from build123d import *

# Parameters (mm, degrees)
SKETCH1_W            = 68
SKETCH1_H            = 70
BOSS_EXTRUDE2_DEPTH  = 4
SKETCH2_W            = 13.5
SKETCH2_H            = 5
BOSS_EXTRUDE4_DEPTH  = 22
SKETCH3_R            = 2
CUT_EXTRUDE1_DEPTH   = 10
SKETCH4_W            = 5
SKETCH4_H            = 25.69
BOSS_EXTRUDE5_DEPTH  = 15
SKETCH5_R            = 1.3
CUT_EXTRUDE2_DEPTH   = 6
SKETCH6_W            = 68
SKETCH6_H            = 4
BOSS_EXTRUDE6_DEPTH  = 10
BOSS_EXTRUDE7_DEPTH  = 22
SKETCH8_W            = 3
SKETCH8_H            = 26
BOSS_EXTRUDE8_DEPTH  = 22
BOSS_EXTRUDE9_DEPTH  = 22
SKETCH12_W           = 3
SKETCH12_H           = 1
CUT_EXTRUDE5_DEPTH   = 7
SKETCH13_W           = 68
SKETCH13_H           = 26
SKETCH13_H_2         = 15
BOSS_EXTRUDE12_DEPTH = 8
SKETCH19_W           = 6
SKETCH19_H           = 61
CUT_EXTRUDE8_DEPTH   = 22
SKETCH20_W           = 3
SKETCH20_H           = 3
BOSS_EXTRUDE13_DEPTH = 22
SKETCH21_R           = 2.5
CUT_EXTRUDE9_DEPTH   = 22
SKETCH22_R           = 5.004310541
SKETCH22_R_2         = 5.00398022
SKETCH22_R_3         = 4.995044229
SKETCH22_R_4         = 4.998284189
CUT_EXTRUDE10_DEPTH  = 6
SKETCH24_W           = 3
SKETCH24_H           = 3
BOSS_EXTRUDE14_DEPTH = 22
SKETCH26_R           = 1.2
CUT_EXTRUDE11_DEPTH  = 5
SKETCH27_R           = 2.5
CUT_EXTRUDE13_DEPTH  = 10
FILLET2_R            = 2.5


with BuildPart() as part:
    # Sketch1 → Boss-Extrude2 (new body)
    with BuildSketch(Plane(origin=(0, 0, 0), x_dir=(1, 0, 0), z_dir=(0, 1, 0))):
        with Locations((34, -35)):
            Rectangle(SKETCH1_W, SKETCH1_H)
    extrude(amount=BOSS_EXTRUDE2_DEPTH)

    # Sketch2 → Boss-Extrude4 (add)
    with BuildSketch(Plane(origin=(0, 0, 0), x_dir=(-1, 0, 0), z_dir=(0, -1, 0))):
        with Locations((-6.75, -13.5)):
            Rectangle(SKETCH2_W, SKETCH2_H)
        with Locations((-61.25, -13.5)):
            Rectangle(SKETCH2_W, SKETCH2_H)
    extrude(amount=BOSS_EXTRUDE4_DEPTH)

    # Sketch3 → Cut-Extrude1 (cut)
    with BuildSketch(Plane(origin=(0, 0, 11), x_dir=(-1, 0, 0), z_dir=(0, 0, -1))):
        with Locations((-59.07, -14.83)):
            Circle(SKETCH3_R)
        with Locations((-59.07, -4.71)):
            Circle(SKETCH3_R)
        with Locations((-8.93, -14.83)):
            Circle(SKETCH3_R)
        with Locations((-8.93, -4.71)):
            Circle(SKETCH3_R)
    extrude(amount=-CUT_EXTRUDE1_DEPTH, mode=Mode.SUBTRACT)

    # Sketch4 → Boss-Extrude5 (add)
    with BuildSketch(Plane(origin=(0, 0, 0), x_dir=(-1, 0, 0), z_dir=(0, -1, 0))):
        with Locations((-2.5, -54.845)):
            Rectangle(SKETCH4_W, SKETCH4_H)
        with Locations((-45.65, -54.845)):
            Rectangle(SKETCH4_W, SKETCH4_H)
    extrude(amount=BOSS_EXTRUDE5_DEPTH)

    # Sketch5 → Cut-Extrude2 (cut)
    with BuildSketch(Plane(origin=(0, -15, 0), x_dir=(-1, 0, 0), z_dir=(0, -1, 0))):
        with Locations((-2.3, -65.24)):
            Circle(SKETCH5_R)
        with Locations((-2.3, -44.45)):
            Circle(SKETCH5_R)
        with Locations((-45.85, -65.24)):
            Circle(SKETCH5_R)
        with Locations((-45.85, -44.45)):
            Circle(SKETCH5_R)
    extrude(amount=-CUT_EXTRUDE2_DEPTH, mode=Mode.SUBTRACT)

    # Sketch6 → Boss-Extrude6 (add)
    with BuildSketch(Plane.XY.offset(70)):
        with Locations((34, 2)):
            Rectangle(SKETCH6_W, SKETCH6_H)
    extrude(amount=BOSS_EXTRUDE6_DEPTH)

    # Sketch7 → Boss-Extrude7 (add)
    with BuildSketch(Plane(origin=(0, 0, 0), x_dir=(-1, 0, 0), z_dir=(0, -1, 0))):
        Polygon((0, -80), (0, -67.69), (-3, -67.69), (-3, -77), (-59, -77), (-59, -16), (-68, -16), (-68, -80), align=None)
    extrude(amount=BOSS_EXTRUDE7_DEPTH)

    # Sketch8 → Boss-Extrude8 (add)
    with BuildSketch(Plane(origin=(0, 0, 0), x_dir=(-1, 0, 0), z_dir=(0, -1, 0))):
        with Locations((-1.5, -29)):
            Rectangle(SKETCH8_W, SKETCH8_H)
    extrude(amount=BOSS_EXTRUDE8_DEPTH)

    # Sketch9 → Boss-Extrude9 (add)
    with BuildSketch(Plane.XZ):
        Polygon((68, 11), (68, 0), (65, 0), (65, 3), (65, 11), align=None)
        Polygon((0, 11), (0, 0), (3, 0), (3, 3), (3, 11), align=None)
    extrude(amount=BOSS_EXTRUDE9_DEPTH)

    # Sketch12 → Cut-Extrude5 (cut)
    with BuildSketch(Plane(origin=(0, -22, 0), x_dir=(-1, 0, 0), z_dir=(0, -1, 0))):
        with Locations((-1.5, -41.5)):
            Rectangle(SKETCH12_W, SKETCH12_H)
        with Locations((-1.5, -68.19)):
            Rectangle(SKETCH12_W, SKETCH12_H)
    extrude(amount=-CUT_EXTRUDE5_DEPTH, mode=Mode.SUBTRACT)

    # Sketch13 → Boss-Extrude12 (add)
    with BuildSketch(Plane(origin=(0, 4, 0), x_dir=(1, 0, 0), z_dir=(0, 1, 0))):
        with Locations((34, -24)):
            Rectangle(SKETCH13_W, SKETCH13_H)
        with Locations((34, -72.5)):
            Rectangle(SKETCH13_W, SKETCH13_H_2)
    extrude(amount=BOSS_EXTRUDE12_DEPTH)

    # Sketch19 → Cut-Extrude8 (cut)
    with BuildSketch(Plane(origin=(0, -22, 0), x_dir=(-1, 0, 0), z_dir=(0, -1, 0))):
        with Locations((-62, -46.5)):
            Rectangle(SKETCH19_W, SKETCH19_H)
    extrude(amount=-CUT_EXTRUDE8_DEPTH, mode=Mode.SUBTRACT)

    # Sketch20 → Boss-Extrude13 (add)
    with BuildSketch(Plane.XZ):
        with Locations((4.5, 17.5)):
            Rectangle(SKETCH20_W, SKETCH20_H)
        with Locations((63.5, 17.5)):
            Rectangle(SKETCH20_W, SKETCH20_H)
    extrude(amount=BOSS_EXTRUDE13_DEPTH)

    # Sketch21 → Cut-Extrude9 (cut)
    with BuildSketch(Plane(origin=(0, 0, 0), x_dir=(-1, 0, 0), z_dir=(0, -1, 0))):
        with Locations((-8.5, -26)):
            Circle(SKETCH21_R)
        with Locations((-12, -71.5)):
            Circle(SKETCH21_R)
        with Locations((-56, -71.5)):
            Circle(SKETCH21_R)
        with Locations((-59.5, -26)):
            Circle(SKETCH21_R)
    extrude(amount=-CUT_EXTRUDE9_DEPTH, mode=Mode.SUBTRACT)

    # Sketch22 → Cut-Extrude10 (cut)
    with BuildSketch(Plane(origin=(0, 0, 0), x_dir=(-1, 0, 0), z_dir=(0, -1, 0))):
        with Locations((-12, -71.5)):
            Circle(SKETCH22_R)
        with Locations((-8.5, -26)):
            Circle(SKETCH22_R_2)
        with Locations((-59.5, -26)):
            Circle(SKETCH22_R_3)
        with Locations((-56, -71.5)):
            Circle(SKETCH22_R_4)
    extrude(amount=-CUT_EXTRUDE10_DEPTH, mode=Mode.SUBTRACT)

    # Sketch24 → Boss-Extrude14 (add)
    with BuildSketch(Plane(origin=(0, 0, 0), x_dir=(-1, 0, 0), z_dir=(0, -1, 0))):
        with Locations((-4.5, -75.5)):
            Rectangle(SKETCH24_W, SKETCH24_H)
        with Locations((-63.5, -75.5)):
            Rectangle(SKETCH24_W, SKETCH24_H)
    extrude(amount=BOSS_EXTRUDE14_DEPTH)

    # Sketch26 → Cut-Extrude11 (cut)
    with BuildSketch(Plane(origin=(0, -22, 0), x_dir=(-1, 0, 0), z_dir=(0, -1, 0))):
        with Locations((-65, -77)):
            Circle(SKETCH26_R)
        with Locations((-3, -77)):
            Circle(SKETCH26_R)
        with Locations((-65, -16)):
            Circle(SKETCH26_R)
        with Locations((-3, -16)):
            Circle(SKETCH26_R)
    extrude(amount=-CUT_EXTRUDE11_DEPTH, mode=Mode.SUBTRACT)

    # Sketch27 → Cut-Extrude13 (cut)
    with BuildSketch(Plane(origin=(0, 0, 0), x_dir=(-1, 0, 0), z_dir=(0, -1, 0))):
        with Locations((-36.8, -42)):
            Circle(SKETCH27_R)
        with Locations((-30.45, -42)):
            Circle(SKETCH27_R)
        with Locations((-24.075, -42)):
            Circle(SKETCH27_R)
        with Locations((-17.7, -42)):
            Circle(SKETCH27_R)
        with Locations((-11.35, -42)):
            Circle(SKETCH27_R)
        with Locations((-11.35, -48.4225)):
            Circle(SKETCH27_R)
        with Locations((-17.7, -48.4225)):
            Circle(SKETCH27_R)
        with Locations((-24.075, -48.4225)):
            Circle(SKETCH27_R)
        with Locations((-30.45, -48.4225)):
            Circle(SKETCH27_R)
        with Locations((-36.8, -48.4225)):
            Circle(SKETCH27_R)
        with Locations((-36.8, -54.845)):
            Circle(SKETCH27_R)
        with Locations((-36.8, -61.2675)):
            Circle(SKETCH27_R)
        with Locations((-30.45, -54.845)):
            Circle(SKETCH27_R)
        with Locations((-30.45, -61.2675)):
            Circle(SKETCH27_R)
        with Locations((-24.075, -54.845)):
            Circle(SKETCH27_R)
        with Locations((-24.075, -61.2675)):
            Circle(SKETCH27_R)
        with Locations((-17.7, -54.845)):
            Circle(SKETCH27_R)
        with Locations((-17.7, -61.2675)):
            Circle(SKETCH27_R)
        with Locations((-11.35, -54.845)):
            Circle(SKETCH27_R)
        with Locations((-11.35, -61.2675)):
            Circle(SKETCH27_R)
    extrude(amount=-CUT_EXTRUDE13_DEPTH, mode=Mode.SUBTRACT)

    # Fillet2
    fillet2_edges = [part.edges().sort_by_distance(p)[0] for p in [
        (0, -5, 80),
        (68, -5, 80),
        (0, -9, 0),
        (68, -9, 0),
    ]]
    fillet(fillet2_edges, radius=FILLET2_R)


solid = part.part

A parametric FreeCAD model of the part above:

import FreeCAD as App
import Part
import Sketcher

V = App.Vector


def edges_at(feature, points):
    """Names of the edges that pass closest to the given points."""
    edges = feature.Shape.Edges
    near = lambda p: min(range(len(edges)), key=lambda i: edges[i].distToShape(Part.Vertex(*p))[0])
    return sorted({f"Edge{near(p) + 1}" for p in points})

doc = App.newDocument("Part")
body = doc.addObject("PartDesign::Body", "Body")

sketch1 = body.newObject("Sketcher::SketchObject", "Sketch")
sketch1.AttachmentSupport = (doc.getObject("XZ_Plane"), [""])
sketch1.MapMode = "FlatFace"
sketch1.addGeometry(Part.LineSegment(V(0, 0, 0), V(0, 70, 0)), False)
sketch1.addGeometry(Part.LineSegment(V(0, 70, 0), V(68, 70, 0)), False)
sketch1.addGeometry(Part.LineSegment(V(68, 70, 0), V(68, 0, 0)), False)
sketch1.addGeometry(Part.LineSegment(V(68, 0, 0), V(0, 0, 0)), False)
sketch1.addConstraint(Sketcher.Constraint("Coincident", 0, 2, 1, 1))
sketch1.addConstraint(Sketcher.Constraint("Coincident", 1, 2, 2, 1))
sketch1.addConstraint(Sketcher.Constraint("Coincident", 2, 2, 3, 1))
sketch1.addConstraint(Sketcher.Constraint("Coincident", 3, 2, 0, 1))
sketch1.addConstraint(Sketcher.Constraint("Vertical", 0))
sketch1.addConstraint(Sketcher.Constraint("Horizontal", 1))
sketch1.addConstraint(Sketcher.Constraint("Vertical", 2))
sketch1.addConstraint(Sketcher.Constraint("Horizontal", 3))
sketch1.addConstraint(Sketcher.Constraint("Coincident", 3, 2, -1, 1))
sketch1.addConstraint(Sketcher.Constraint("DistanceX", 1, 1, 1, 2, 68.0))
sketch1.addConstraint(Sketcher.Constraint("DistanceY", 0, 1, 0, 2, 70.0))
pad1 = body.newObject("PartDesign::Pad", "Pad")
pad1.Profile = sketch1
pad1.Length = 4
pad1.Reversed = True

sketch2 = body.newObject("Sketcher::SketchObject", "Sketch001")
sketch2.AttachmentSupport = (doc.getObject("XZ_Plane"), [""])
sketch2.MapMode = "FlatFace"
sketch2.addGeometry(Part.LineSegment(V(14, 11, 0), V(14, 16, 0)), False)
sketch2.addGeometry(Part.LineSegment(V(14, 16, 0), V(0, 16, 0)), False)
sketch2.addGeometry(Part.LineSegment(V(0, 16, 0), V(0, 11, 0)), False)
sketch2.addGeometry(Part.LineSegment(V(0, 11, 0), V(14, 11, 0)), False)
sketch2.addGeometry(Part.LineSegment(V(68, 11, 0), V(68, 16, 0)), False)
sketch2.addGeometry(Part.LineSegment(V(68, 16, 0), V(54, 16, 0)), False)
sketch2.addGeometry(Part.LineSegment(V(54, 16, 0), V(54, 11, 0)), False)
sketch2.addGeometry(Part.LineSegment(V(54, 11, 0), V(68, 11, 0)), False)
sketch2.addConstraint(Sketcher.Constraint("Coincident", 0, 2, 1, 1))
sketch2.addConstraint(Sketcher.Constraint("Coincident", 1, 2, 2, 1))
sketch2.addConstraint(Sketcher.Constraint("Coincident", 2, 2, 3, 1))
sketch2.addConstraint(Sketcher.Constraint("Coincident", 3, 2, 0, 1))
sketch2.addConstraint(Sketcher.Constraint("Coincident", 4, 2, 5, 1))
sketch2.addConstraint(Sketcher.Constraint("Coincident", 5, 2, 6, 1))
sketch2.addConstraint(Sketcher.Constraint("Coincident", 6, 2, 7, 1))
sketch2.addConstraint(Sketcher.Constraint("Coincident", 7, 2, 4, 1))
sketch2.addConstraint(Sketcher.Constraint("Vertical", 0))
sketch2.addConstraint(Sketcher.Constraint("Horizontal", 1))
sketch2.addConstraint(Sketcher.Constraint("Vertical", 2))
sketch2.addConstraint(Sketcher.Constraint("Horizontal", 3))
sketch2.addConstraint(Sketcher.Constraint("Vertical", 4))
sketch2.addConstraint(Sketcher.Constraint("Horizontal", 5))
sketch2.addConstraint(Sketcher.Constraint("Vertical", 6))
sketch2.addConstraint(Sketcher.Constraint("Horizontal", 7))
sketch2.addConstraint(Sketcher.Constraint("PointOnObject", 1, 2, -2))
sketch2.addConstraint(Sketcher.Constraint("Horizontal", 1, 2, 4, 2))
sketch2.addConstraint(Sketcher.Constraint("Horizontal", 3, 2, 6, 2))
sketch2.addConstraint(Sketcher.Constraint("Equal", 3, 5))
sketch2.addConstraint(Sketcher.Constraint("DistanceY", 0, 1, 0, 2, 5.0))
sketch2.addConstraint(Sketcher.Constraint("DistanceX", 1, 2, 1, 1, 13.5))
sketch2.addConstraint(Sketcher.Constraint("DistanceY", -1, 1, 0, 2, 16.0))
sketch2.addConstraint(Sketcher.Constraint("DistanceX", -1, 1, 4, 2, 68.0))
pad2 = body.newObject("PartDesign::Pad", "Pad001")
pad2.Profile = sketch2
pad2.Length = 22

sketch3 = body.newObject("Sketcher::SketchObject", "Sketch002")
sketch3.AttachmentSupport = (doc.getObject("XY_Plane"), [""])
sketch3.MapMode = "FlatFace"
sketch3.AttachmentOffset = App.Placement(V(0, 0, 11), App.Rotation())
sketch3.addGeometry(Part.Circle(V(59.1, -14.8, 0), V(0, 0, 1), 2), False)
sketch3.addGeometry(Part.Circle(V(59.1, -4.7, 0), V(0, 0, 1), 2), False)
sketch3.addGeometry(Part.Circle(V(8.9, -14.8, 0), V(0, 0, 1), 2), False)
sketch3.addGeometry(Part.Circle(V(8.9, -4.7, 0), V(0, 0, 1), 2), False)
sketch3.addConstraint(Sketcher.Constraint("Equal", 0, 1))
sketch3.addConstraint(Sketcher.Constraint("Equal", 1, 2))
sketch3.addConstraint(Sketcher.Constraint("Equal", 2, 3))
sketch3.addConstraint(Sketcher.Constraint("Horizontal", 0, 3, 2, 3))
sketch3.addConstraint(Sketcher.Constraint("Horizontal", 1, 3, 3, 3))
sketch3.addConstraint(Sketcher.Constraint("Vertical", 0, 3, 1, 3))
sketch3.addConstraint(Sketcher.Constraint("Vertical", 2, 3, 3, 3))
sketch3.addConstraint(Sketcher.Constraint("Diameter", 0, 4.0))
sketch3.addConstraint(Sketcher.Constraint("DistanceX", -1, 1, 0, 3, 59.07))
sketch3.addConstraint(Sketcher.Constraint("DistanceY", 0, 3, -1, 1, 14.83))
sketch3.addConstraint(Sketcher.Constraint("DistanceY", 1, 3, -1, 1, 4.71))
sketch3.addConstraint(Sketcher.Constraint("DistanceX", -1, 1, 2, 3, 8.93))
pocket1 = body.newObject("PartDesign::Pocket", "Pocket")
pocket1.Profile = sketch3
pocket1.Length = 10
pocket1.Reversed = True

sketch4 = body.newObject("Sketcher::SketchObject", "Sketch003")
sketch4.AttachmentSupport = (doc.getObject("XZ_Plane"), [""])
sketch4.MapMode = "FlatFace"
sketch4.addGeometry(Part.LineSegment(V(5, 42, 0), V(5, 68, 0)), False)
sketch4.addGeometry(Part.LineSegment(V(5, 68, 0), V(0, 68, 0)), False)
sketch4.addGeometry(Part.LineSegment(V(0, 68, 0), V(0, 42, 0)), False)
sketch4.addGeometry(Part.LineSegment(V(0, 42, 0), V(5, 42, 0)), False)
sketch4.addGeometry(Part.LineSegment(V(48, 42, 0), V(48, 68, 0)), False)
sketch4.addGeometry(Part.LineSegment(V(48, 68, 0), V(43, 68, 0)), False)
sketch4.addGeometry(Part.LineSegment(V(43, 68, 0), V(43, 42, 0)), False)
sketch4.addGeometry(Part.LineSegment(V(43, 42, 0), V(48, 42, 0)), False)
sketch4.addConstraint(Sketcher.Constraint("Coincident", 0, 2, 1, 1))
sketch4.addConstraint(Sketcher.Constraint("Coincident", 1, 2, 2, 1))
sketch4.addConstraint(Sketcher.Constraint("Coincident", 2, 2, 3, 1))
sketch4.addConstraint(Sketcher.Constraint("Coincident", 3, 2, 0, 1))
sketch4.addConstraint(Sketcher.Constraint("Coincident", 4, 2, 5, 1))
sketch4.addConstraint(Sketcher.Constraint("Coincident", 5, 2, 6, 1))
sketch4.addConstraint(Sketcher.Constraint("Coincident", 6, 2, 7, 1))
sketch4.addConstraint(Sketcher.Constraint("Coincident", 7, 2, 4, 1))
sketch4.addConstraint(Sketcher.Constraint("Vertical", 0))
sketch4.addConstraint(Sketcher.Constraint("Horizontal", 1))
sketch4.addConstraint(Sketcher.Constraint("Vertical", 2))
sketch4.addConstraint(Sketcher.Constraint("Horizontal", 3))
sketch4.addConstraint(Sketcher.Constraint("Vertical", 4))
sketch4.addConstraint(Sketcher.Constraint("Horizontal", 5))
sketch4.addConstraint(Sketcher.Constraint("Vertical", 6))
sketch4.addConstraint(Sketcher.Constraint("Horizontal", 7))
sketch4.addConstraint(Sketcher.Constraint("PointOnObject", 1, 2, -2))
sketch4.addConstraint(Sketcher.Constraint("Horizontal", 1, 2, 4, 2))
sketch4.addConstraint(Sketcher.Constraint("Horizontal", 3, 2, 6, 2))
sketch4.addConstraint(Sketcher.Constraint("Equal", 3, 5))
sketch4.addConstraint(Sketcher.Constraint("DistanceX", 1, 2, 1, 1, 5.0))
sketch4.addConstraint(Sketcher.Constraint("DistanceY", -1, 1, 2, 2, 42.0))
sketch4.addConstraint(Sketcher.Constraint("DistanceY", 0, 1, 0, 2, 25.69))
sketch4.addConstraint(Sketcher.Constraint("DistanceX", -1, 1, 4, 2, 48.15))
pad3 = body.newObject("PartDesign::Pad", "Pad002")
pad3.Profile = sketch4
pad3.Length = 15

sketch5 = body.newObject("Sketcher::SketchObject", "Sketch004")
sketch5.AttachmentSupport = (doc.getObject("XZ_Plane"), [""])
sketch5.MapMode = "FlatFace"
sketch5.AttachmentOffset = App.Placement(V(0, 0, 15), App.Rotation())
sketch5.addGeometry(Part.Circle(V(2.3, 65.2, 0), V(0, 0, 1), 1.3), False)
sketch5.addGeometry(Part.Circle(V(2.3, 44.5, 0), V(0, 0, 1), 1.3), False)
sketch5.addGeometry(Part.Circle(V(45.9, 65.2, 0), V(0, 0, 1), 1.3), False)
sketch5.addGeometry(Part.Circle(V(45.9, 44.5, 0), V(0, 0, 1), 1.3), False)
sketch5.addConstraint(Sketcher.Constraint("Equal", 0, 1))
sketch5.addConstraint(Sketcher.Constraint("Equal", 1, 2))
sketch5.addConstraint(Sketcher.Constraint("Equal", 2, 3))
sketch5.addConstraint(Sketcher.Constraint("Horizontal", 0, 3, 2, 3))
sketch5.addConstraint(Sketcher.Constraint("Horizontal", 1, 3, 3, 3))
sketch5.addConstraint(Sketcher.Constraint("Vertical", 0, 3, 1, 3))
sketch5.addConstraint(Sketcher.Constraint("Vertical", 2, 3, 3, 3))
sketch5.addConstraint(Sketcher.Constraint("Diameter", 0, 2.6))
sketch5.addConstraint(Sketcher.Constraint("DistanceX", -1, 1, 0, 3, 2.3))
sketch5.addConstraint(Sketcher.Constraint("DistanceY", -1, 1, 0, 3, 65.24))
sketch5.addConstraint(Sketcher.Constraint("DistanceY", -1, 1, 1, 3, 44.45))
sketch5.addConstraint(Sketcher.Constraint("DistanceX", -1, 1, 2, 3, 45.85))
pocket2 = body.newObject("PartDesign::Pocket", "Pocket001")
pocket2.Profile = sketch5
pocket2.Length = 6

sketch6 = body.newObject("Sketcher::SketchObject", "Sketch005")
sketch6.AttachmentSupport = (doc.getObject("XY_Plane"), [""])
sketch6.MapMode = "FlatFace"
sketch6.AttachmentOffset = App.Placement(V(0, 0, 70), App.Rotation())
sketch6.addGeometry(Part.LineSegment(V(0, 4, 0), V(0, 0, 0)), False)
sketch6.addGeometry(Part.LineSegment(V(0, 0, 0), V(68, 0, 0)), False)
sketch6.addGeometry(Part.LineSegment(V(68, 0, 0), V(68, 4, 0)), False)
sketch6.addGeometry(Part.LineSegment(V(68, 4, 0), V(0, 4, 0)), False)
sketch6.addConstraint(Sketcher.Constraint("Coincident", 0, 2, 1, 1))
sketch6.addConstraint(Sketcher.Constraint("Coincident", 1, 2, 2, 1))
sketch6.addConstraint(Sketcher.Constraint("Coincident", 2, 2, 3, 1))
sketch6.addConstraint(Sketcher.Constraint("Coincident", 3, 2, 0, 1))
sketch6.addConstraint(Sketcher.Constraint("Vertical", 0))
sketch6.addConstraint(Sketcher.Constraint("Horizontal", 1))
sketch6.addConstraint(Sketcher.Constraint("Vertical", 2))
sketch6.addConstraint(Sketcher.Constraint("Horizontal", 3))
sketch6.addConstraint(Sketcher.Constraint("Coincident", 0, 2, -1, 1))
sketch6.addConstraint(Sketcher.Constraint("DistanceX", 1, 1, 1, 2, 68.0))
sketch6.addConstraint(Sketcher.Constraint("DistanceY", 0, 2, 0, 1, 4.0))
pad4 = body.newObject("PartDesign::Pad", "Pad003")
pad4.Profile = sketch6
pad4.Length = 10

sketch7 = body.newObject("Sketcher::SketchObject", "Sketch006")
sketch7.AttachmentSupport = (doc.getObject("XZ_Plane"), [""])
sketch7.MapMode = "FlatFace"
sketch7.addGeometry(Part.LineSegment(V(0, 80, 0), V(0, 67.7, 0)), False)
sketch7.addGeometry(Part.LineSegment(V(0, 67.7, 0), V(3, 67.7, 0)), False)
sketch7.addGeometry(Part.LineSegment(V(3, 67.7, 0), V(3, 77, 0)), False)
sketch7.addGeometry(Part.LineSegment(V(3, 77, 0), V(59, 77, 0)), False)
sketch7.addGeometry(Part.LineSegment(V(59, 77, 0), V(59, 16, 0)), False)
sketch7.addGeometry(Part.LineSegment(V(59, 16, 0), V(68, 16, 0)), False)
sketch7.addGeometry(Part.LineSegment(V(68, 16, 0), V(68, 80, 0)), False)
sketch7.addGeometry(Part.LineSegment(V(68, 80, 0), V(0, 80, 0)), False)
sketch7.addConstraint(Sketcher.Constraint("Coincident", 0, 2, 1, 1))
sketch7.addConstraint(Sketcher.Constraint("Coincident", 1, 2, 2, 1))
sketch7.addConstraint(Sketcher.Constraint("Coincident", 2, 2, 3, 1))
sketch7.addConstraint(Sketcher.Constraint("Coincident", 3, 2, 4, 1))
sketch7.addConstraint(Sketcher.Constraint("Coincident", 4, 2, 5, 1))
sketch7.addConstraint(Sketcher.Constraint("Coincident", 5, 2, 6, 1))
sketch7.addConstraint(Sketcher.Constraint("Coincident", 6, 2, 7, 1))
sketch7.addConstraint(Sketcher.Constraint("Coincident", 7, 2, 0, 1))
sketch7.addConstraint(Sketcher.Constraint("Vertical", 0))
sketch7.addConstraint(Sketcher.Constraint("Horizontal", 1))
sketch7.addConstraint(Sketcher.Constraint("Vertical", 2))
sketch7.addConstraint(Sketcher.Constraint("Horizontal", 3))
sketch7.addConstraint(Sketcher.Constraint("Vertical", 4))
sketch7.addConstraint(Sketcher.Constraint("Horizontal", 5))
sketch7.addConstraint(Sketcher.Constraint("Vertical", 6))
sketch7.addConstraint(Sketcher.Constraint("Horizontal", 7))
sketch7.addConstraint(Sketcher.Constraint("PointOnObject", 0, 2, -2))
sketch7.addConstraint(Sketcher.Constraint("DistanceX", 1, 1, 1, 2, 3.0))
sketch7.addConstraint(Sketcher.Constraint("DistanceX", 3, 1, 3, 2, 56.0))
sketch7.addConstraint(Sketcher.Constraint("DistanceX", 5, 1, 5, 2, 9.0))
sketch7.addConstraint(Sketcher.Constraint("DistanceY", 4, 2, 4, 1, 61.0))
sketch7.addConstraint(Sketcher.Constraint("DistanceY", 6, 1, 6, 2, 64.0))
sketch7.addConstraint(Sketcher.Constraint("DistanceY", -1, 1, 2, 2, 77.0))
sketch7.addConstraint(Sketcher.Constraint("DistanceY", 0, 2, 0, 1, 12.31))
pad5 = body.newObject("PartDesign::Pad", "Pad004")
pad5.Profile = sketch7
pad5.Length = 22

sketch8 = body.newObject("Sketcher::SketchObject", "Sketch007")
sketch8.AttachmentSupport = (doc.getObject("XZ_Plane"), [""])
sketch8.MapMode = "FlatFace"
sketch8.addGeometry(Part.LineSegment(V(3, 16, 0), V(3, 42, 0)), False)
sketch8.addGeometry(Part.LineSegment(V(3, 42, 0), V(0, 42, 0)), False)
sketch8.addGeometry(Part.LineSegment(V(0, 42, 0), V(0, 16, 0)), False)
sketch8.addGeometry(Part.LineSegment(V(0, 16, 0), V(3, 16, 0)), False)
sketch8.addConstraint(Sketcher.Constraint("Coincident", 0, 2, 1, 1))
sketch8.addConstraint(Sketcher.Constraint("Coincident", 1, 2, 2, 1))
sketch8.addConstraint(Sketcher.Constraint("Coincident", 2, 2, 3, 1))
sketch8.addConstraint(Sketcher.Constraint("Coincident", 3, 2, 0, 1))
sketch8.addConstraint(Sketcher.Constraint("Vertical", 0))
sketch8.addConstraint(Sketcher.Constraint("Horizontal", 1))
sketch8.addConstraint(Sketcher.Constraint("Vertical", 2))
sketch8.addConstraint(Sketcher.Constraint("Horizontal", 3))
sketch8.addConstraint(Sketcher.Constraint("PointOnObject", 1, 2, -2))
sketch8.addConstraint(Sketcher.Constraint("DistanceX", 1, 2, 1, 1, 3.0))
sketch8.addConstraint(Sketcher.Constraint("DistanceY", 0, 1, 0, 2, 26.0))
sketch8.addConstraint(Sketcher.Constraint("DistanceY", -1, 1, 0, 2, 42.0))
pad6 = body.newObject("PartDesign::Pad", "Pad005")
pad6.Profile = sketch8
pad6.Length = 22

sketch9 = body.newObject("Sketcher::SketchObject", "Sketch008")
sketch9.AttachmentSupport = (doc.getObject("XZ_Plane"), [""])
sketch9.MapMode = "FlatFace"
sketch9.addGeometry(Part.LineSegment(V(68, 0, 0), V(68, 11, 0)), False)
sketch9.addGeometry(Part.LineSegment(V(68, 11, 0), V(65, 11, 0)), False)
sketch9.addGeometry(Part.LineSegment(V(65, 11, 0), V(65, 0, 0)), False)
sketch9.addGeometry(Part.LineSegment(V(65, 0, 0), V(68, 0, 0)), False)
sketch9.addGeometry(Part.LineSegment(V(0, 11, 0), V(0, 0, 0)), False)
sketch9.addGeometry(Part.LineSegment(V(0, 0, 0), V(3, 0, 0)), False)
sketch9.addGeometry(Part.LineSegment(V(3, 0, 0), V(3, 11, 0)), False)
sketch9.addGeometry(Part.LineSegment(V(3, 11, 0), V(0, 11, 0)), False)
sketch9.addConstraint(Sketcher.Constraint("Coincident", 0, 2, 1, 1))
sketch9.addConstraint(Sketcher.Constraint("Coincident", 1, 2, 2, 1))
sketch9.addConstraint(Sketcher.Constraint("Coincident", 2, 2, 3, 1))
sketch9.addConstraint(Sketcher.Constraint("Coincident", 3, 2, 0, 1))
sketch9.addConstraint(Sketcher.Constraint("Coincident", 4, 2, 5, 1))
sketch9.addConstraint(Sketcher.Constraint("Coincident", 5, 2, 6, 1))
sketch9.addConstraint(Sketcher.Constraint("Coincident", 6, 2, 7, 1))
sketch9.addConstraint(Sketcher.Constraint("Coincident", 7, 2, 4, 1))
sketch9.addConstraint(Sketcher.Constraint("Vertical", 0))
sketch9.addConstraint(Sketcher.Constraint("Horizontal", 1))
sketch9.addConstraint(Sketcher.Constraint("Vertical", 2))
sketch9.addConstraint(Sketcher.Constraint("Horizontal", 3))
sketch9.addConstraint(Sketcher.Constraint("Vertical", 4))
sketch9.addConstraint(Sketcher.Constraint("Horizontal", 5))
sketch9.addConstraint(Sketcher.Constraint("Vertical", 6))
sketch9.addConstraint(Sketcher.Constraint("Horizontal", 7))
sketch9.addConstraint(Sketcher.Constraint("Coincident", 4, 2, -1, 1))
sketch9.addConstraint(Sketcher.Constraint("PointOnObject", 2, 2, -1))
sketch9.addConstraint(Sketcher.Constraint("Horizontal", 1, 2, 6, 2))
sketch9.addConstraint(Sketcher.Constraint("Equal", 3, 5))
sketch9.addConstraint(Sketcher.Constraint("DistanceX", 1, 2, 1, 1, 3.0))
sketch9.addConstraint(Sketcher.Constraint("DistanceY", 0, 1, 0, 2, 11.0))
sketch9.addConstraint(Sketcher.Constraint("DistanceX", -1, 1, 0, 2, 68.0))
pad7 = body.newObject("PartDesign::Pad", "Pad006")
pad7.Profile = sketch9
pad7.Length = 22

sketch10 = body.newObject("Sketcher::SketchObject", "Sketch009")
sketch10.AttachmentSupport = (doc.getObject("XZ_Plane"), [""])
sketch10.MapMode = "FlatFace"
sketch10.AttachmentOffset = App.Placement(V(0, 0, 22), App.Rotation())
sketch10.addGeometry(Part.LineSegment(V(3, 41, 0), V(3, 42, 0)), False)
sketch10.addGeometry(Part.LineSegment(V(3, 42, 0), V(0, 42, 0)), False)
sketch10.addGeometry(Part.LineSegment(V(0, 42, 0), V(0, 41, 0)), False)
sketch10.addGeometry(Part.LineSegment(V(0, 41, 0), V(3, 41, 0)), False)
sketch10.addGeometry(Part.LineSegment(V(3, 67.7, 0), V(3, 68.7, 0)), False)
sketch10.addGeometry(Part.LineSegment(V(3, 68.7, 0), V(0, 68.7, 0)), False)
sketch10.addGeometry(Part.LineSegment(V(0, 68.7, 0), V(0, 67.7, 0)), False)
sketch10.addGeometry(Part.LineSegment(V(0, 67.7, 0), V(3, 67.7, 0)), False)
sketch10.addConstraint(Sketcher.Constraint("Coincident", 0, 2, 1, 1))
sketch10.addConstraint(Sketcher.Constraint("Coincident", 1, 2, 2, 1))
sketch10.addConstraint(Sketcher.Constraint("Coincident", 2, 2, 3, 1))
sketch10.addConstraint(Sketcher.Constraint("Coincident", 3, 2, 0, 1))
sketch10.addConstraint(Sketcher.Constraint("Coincident", 4, 2, 5, 1))
sketch10.addConstraint(Sketcher.Constraint("Coincident", 5, 2, 6, 1))
sketch10.addConstraint(Sketcher.Constraint("Coincident", 6, 2, 7, 1))
sketch10.addConstraint(Sketcher.Constraint("Coincident", 7, 2, 4, 1))
sketch10.addConstraint(Sketcher.Constraint("Vertical", 0))
sketch10.addConstraint(Sketcher.Constraint("Horizontal", 1))
sketch10.addConstraint(Sketcher.Constraint("Vertical", 2))
sketch10.addConstraint(Sketcher.Constraint("Horizontal", 3))
sketch10.addConstraint(Sketcher.Constraint("Vertical", 4))
sketch10.addConstraint(Sketcher.Constraint("Horizontal", 5))
sketch10.addConstraint(Sketcher.Constraint("Vertical", 6))
sketch10.addConstraint(Sketcher.Constraint("Horizontal", 7))
sketch10.addConstraint(Sketcher.Constraint("PointOnObject", 1, 2, -2))
sketch10.addConstraint(Sketcher.Constraint("PointOnObject", 5, 2, -2))
sketch10.addConstraint(Sketcher.Constraint("Vertical", 3, 2, 4, 2))
sketch10.addConstraint(Sketcher.Constraint("Equal", 2, 4))
sketch10.addConstraint(Sketcher.Constraint("DistanceX", 1, 2, 1, 1, 3.0))
sketch10.addConstraint(Sketcher.Constraint("DistanceY", 0, 1, 0, 2, 1.0))
sketch10.addConstraint(Sketcher.Constraint("DistanceY", -1, 1, 0, 2, 42.0))
sketch10.addConstraint(Sketcher.Constraint("DistanceY", -1, 1, 4, 2, 68.69))
pocket3 = body.newObject("PartDesign::Pocket", "Pocket002")
pocket3.Profile = sketch10
pocket3.Length = 7

sketch11 = body.newObject("Sketcher::SketchObject", "Sketch010")
sketch11.AttachmentSupport = (doc.getObject("XZ_Plane"), [""])
sketch11.MapMode = "FlatFace"
sketch11.AttachmentOffset = App.Placement(V(0, 0, -4), App.Rotation())
sketch11.addGeometry(Part.LineSegment(V(0, 11, 0), V(0, 37, 0)), False)
sketch11.addGeometry(Part.LineSegment(V(0, 37, 0), V(68, 37, 0)), False)
sketch11.addGeometry(Part.LineSegment(V(68, 37, 0), V(68, 11, 0)), False)
sketch11.addGeometry(Part.LineSegment(V(68, 11, 0), V(0, 11, 0)), False)
sketch11.addGeometry(Part.LineSegment(V(0, 65, 0), V(0, 80, 0)), False)
sketch11.addGeometry(Part.LineSegment(V(0, 80, 0), V(68, 80, 0)), False)
sketch11.addGeometry(Part.LineSegment(V(68, 80, 0), V(68, 65, 0)), False)
sketch11.addGeometry(Part.LineSegment(V(68, 65, 0), V(0, 65, 0)), False)
sketch11.addConstraint(Sketcher.Constraint("Coincident", 0, 2, 1, 1))
sketch11.addConstraint(Sketcher.Constraint("Coincident", 1, 2, 2, 1))
sketch11.addConstraint(Sketcher.Constraint("Coincident", 2, 2, 3, 1))
sketch11.addConstraint(Sketcher.Constraint("Coincident", 3, 2, 0, 1))
sketch11.addConstraint(Sketcher.Constraint("Coincident", 4, 2, 5, 1))
sketch11.addConstraint(Sketcher.Constraint("Coincident", 5, 2, 6, 1))
sketch11.addConstraint(Sketcher.Constraint("Coincident", 6, 2, 7, 1))
sketch11.addConstraint(Sketcher.Constraint("Coincident", 7, 2, 4, 1))
sketch11.addConstraint(Sketcher.Constraint("Vertical", 0))
sketch11.addConstraint(Sketcher.Constraint("Horizontal", 1))
sketch11.addConstraint(Sketcher.Constraint("Vertical", 2))
sketch11.addConstraint(Sketcher.Constraint("Horizontal", 3))
sketch11.addConstraint(Sketcher.Constraint("Vertical", 4))
sketch11.addConstraint(Sketcher.Constraint("Horizontal", 5))
sketch11.addConstraint(Sketcher.Constraint("Vertical", 6))
sketch11.addConstraint(Sketcher.Constraint("Horizontal", 7))
sketch11.addConstraint(Sketcher.Constraint("PointOnObject", 0, 2, -2))
sketch11.addConstraint(Sketcher.Constraint("PointOnObject", 4, 2, -2))
sketch11.addConstraint(Sketcher.Constraint("Vertical", 2, 2, 5, 2))
sketch11.addConstraint(Sketcher.Constraint("DistanceX", 1, 1, 1, 2, 68.0))
sketch11.addConstraint(Sketcher.Constraint("DistanceY", 0, 1, 0, 2, 26.0))
sketch11.addConstraint(Sketcher.Constraint("DistanceY", 4, 1, 4, 2, 15.0))
sketch11.addConstraint(Sketcher.Constraint("DistanceY", -1, 1, 0, 2, 37.0))
sketch11.addConstraint(Sketcher.Constraint("DistanceY", -1, 1, 4, 2, 80.0))
pad8 = body.newObject("PartDesign::Pad", "Pad007")
pad8.Profile = sketch11
pad8.Length = 8
pad8.Reversed = True

sketch12 = body.newObject("Sketcher::SketchObject", "Sketch011")
sketch12.AttachmentSupport = (doc.getObject("XZ_Plane"), [""])
sketch12.MapMode = "FlatFace"
sketch12.AttachmentOffset = App.Placement(V(0, 0, 22), App.Rotation())
sketch12.addGeometry(Part.LineSegment(V(65, 16, 0), V(65, 77, 0)), False)
sketch12.addGeometry(Part.LineSegment(V(65, 77, 0), V(59, 77, 0)), False)
sketch12.addGeometry(Part.LineSegment(V(59, 77, 0), V(59, 16, 0)), False)
sketch12.addGeometry(Part.LineSegment(V(59, 16, 0), V(65, 16, 0)), False)
sketch12.addConstraint(Sketcher.Constraint("Coincident", 0, 2, 1, 1))
sketch12.addConstraint(Sketcher.Constraint("Coincident", 1, 2, 2, 1))
sketch12.addConstraint(Sketcher.Constraint("Coincident", 2, 2, 3, 1))
sketch12.addConstraint(Sketcher.Constraint("Coincident", 3, 2, 0, 1))
sketch12.addConstraint(Sketcher.Constraint("Vertical", 0))
sketch12.addConstraint(Sketcher.Constraint("Horizontal", 1))
sketch12.addConstraint(Sketcher.Constraint("Vertical", 2))
sketch12.addConstraint(Sketcher.Constraint("Horizontal", 3))
sketch12.addConstraint(Sketcher.Constraint("DistanceX", 1, 2, 1, 1, 6.0))
sketch12.addConstraint(Sketcher.Constraint("DistanceY", 0, 1, 0, 2, 61.0))
sketch12.addConstraint(Sketcher.Constraint("DistanceX", -1, 1, 0, 2, 65.0))
sketch12.addConstraint(Sketcher.Constraint("DistanceY", -1, 1, 0, 2, 77.0))
pocket4 = body.newObject("PartDesign::Pocket", "Pocket003")
pocket4.Profile = sketch12
pocket4.Length = 22

sketch13 = body.newObject("Sketcher::SketchObject", "Sketch012")
sketch13.AttachmentSupport = (doc.getObject("XZ_Plane"), [""])
sketch13.MapMode = "FlatFace"
sketch13.addGeometry(Part.LineSegment(V(3, 19, 0), V(3, 16, 0)), False)
sketch13.addGeometry(Part.LineSegment(V(3, 16, 0), V(6, 16, 0)), False)
sketch13.addGeometry(Part.LineSegment(V(6, 16, 0), V(6, 19, 0)), False)
sketch13.addGeometry(Part.LineSegment(V(6, 19, 0), V(3, 19, 0)), False)
sketch13.addGeometry(Part.LineSegment(V(62, 19, 0), V(62, 16, 0)), False)
sketch13.addGeometry(Part.LineSegment(V(62, 16, 0), V(65, 16, 0)), False)
sketch13.addGeometry(Part.LineSegment(V(65, 16, 0), V(65, 19, 0)), False)
sketch13.addGeometry(Part.LineSegment(V(65, 19, 0), V(62, 19, 0)), False)
sketch13.addConstraint(Sketcher.Constraint("Coincident", 0, 2, 1, 1))
sketch13.addConstraint(Sketcher.Constraint("Coincident", 1, 2, 2, 1))
sketch13.addConstraint(Sketcher.Constraint("Coincident", 2, 2, 3, 1))
sketch13.addConstraint(Sketcher.Constraint("Coincident", 3, 2, 0, 1))
sketch13.addConstraint(Sketcher.Constraint("Coincident", 4, 2, 5, 1))
sketch13.addConstraint(Sketcher.Constraint("Coincident", 5, 2, 6, 1))
sketch13.addConstraint(Sketcher.Constraint("Coincident", 6, 2, 7, 1))
sketch13.addConstraint(Sketcher.Constraint("Coincident", 7, 2, 4, 1))
sketch13.addConstraint(Sketcher.Constraint("Vertical", 0))
sketch13.addConstraint(Sketcher.Constraint("Horizontal", 1))
sketch13.addConstraint(Sketcher.Constraint("Vertical", 2))
sketch13.addConstraint(Sketcher.Constraint("Horizontal", 3))
sketch13.addConstraint(Sketcher.Constraint("Vertical", 4))
sketch13.addConstraint(Sketcher.Constraint("Horizontal", 5))
sketch13.addConstraint(Sketcher.Constraint("Vertical", 6))
sketch13.addConstraint(Sketcher.Constraint("Horizontal", 7))
sketch13.addConstraint(Sketcher.Constraint("Horizontal", 1, 2, 4, 2))
sketch13.addConstraint(Sketcher.Constraint("Horizontal", 3, 2, 6, 2))
sketch13.addConstraint(Sketcher.Constraint("Equal", 3, 5))
sketch13.addConstraint(Sketcher.Constraint("Equal", 7, 0))
sketch13.addConstraint(Sketcher.Constraint("DistanceX", 1, 1, 1, 2, 3.0))
sketch13.addConstraint(Sketcher.Constraint("DistanceX", -1, 1, 0, 2, 3.0))
sketch13.addConstraint(Sketcher.Constraint("DistanceY", -1, 1, 0, 2, 16.0))
sketch13.addConstraint(Sketcher.Constraint("DistanceX", -1, 1, 4, 2, 62.0))
pad9 = body.newObject("PartDesign::Pad", "Pad008")
pad9.Profile = sketch13
pad9.Length = 22

sketch14 = body.newObject("Sketcher::SketchObject", "Sketch013")
sketch14.AttachmentSupport = (doc.getObject("XZ_Plane"), [""])
sketch14.MapMode = "FlatFace"
sketch14.addGeometry(Part.Circle(V(8.5, 26, 0), V(0, 0, 1), 2.5), False)
sketch14.addGeometry(Part.Circle(V(12, 71.5, 0), V(0, 0, 1), 2.5), False)
sketch14.addGeometry(Part.Circle(V(56, 71.5, 0), V(0, 0, 1), 2.5), False)
sketch14.addGeometry(Part.Circle(V(59.5, 26, 0), V(0, 0, 1), 2.5), False)
sketch14.addConstraint(Sketcher.Constraint("Equal", 0, 1))
sketch14.addConstraint(Sketcher.Constraint("Equal", 1, 2))
sketch14.addConstraint(Sketcher.Constraint("Equal", 2, 3))
sketch14.addConstraint(Sketcher.Constraint("Horizontal", 1, 3, 2, 3))
sketch14.addConstraint(Sketcher.Constraint("Horizontal", 0, 3, 3, 3))
sketch14.addConstraint(Sketcher.Constraint("Diameter", 0, 5.0))
sketch14.addConstraint(Sketcher.Constraint("DistanceY", -1, 1, 0, 3, 26.0))
sketch14.addConstraint(Sketcher.Constraint("DistanceX", -1, 1, 1, 3, 12.0))
sketch14.addConstraint(Sketcher.Constraint("DistanceX", -1, 1, 2, 3, 56.0))
sketch14.addConstraint(Sketcher.Constraint("DistanceX", 0, 3, 3, 3, 51.0))
sketch14.addConstraint(Sketcher.Constraint("DistanceX", -1, 1, 0, 3, 8.5))
sketch14.addConstraint(Sketcher.Constraint("DistanceY", -1, 1, 1, 3, 71.5))
pocket5 = body.newObject("PartDesign::Pocket", "Pocket004")
pocket5.Profile = sketch14
pocket5.Length = 22

sketch15 = body.newObject("Sketcher::SketchObject", "Sketch014")
sketch15.AttachmentSupport = (doc.getObject("XZ_Plane"), [""])
sketch15.MapMode = "FlatFace"
sketch15.addGeometry(Part.Circle(V(12, 71.5, 0), V(0, 0, 1), 5), False)
sketch15.addGeometry(Part.Circle(V(8.5, 26, 0), V(0, 0, 1), 5), False)
sketch15.addGeometry(Part.Circle(V(59.5, 26, 0), V(0, 0, 1), 5), False)
sketch15.addGeometry(Part.Circle(V(56, 71.5, 0), V(0, 0, 1), 5), False)
sketch15.addConstraint(Sketcher.Constraint("Horizontal", 1, 3, 2, 3))
sketch15.addConstraint(Sketcher.Constraint("Horizontal", 0, 3, 3, 3))
sketch15.addConstraint(Sketcher.Constraint("DistanceX", -1, 1, 0, 3, 12.0))
sketch15.addConstraint(Sketcher.Constraint("DistanceY", -1, 1, 1, 3, 26.0))
sketch15.addConstraint(Sketcher.Constraint("DistanceX", -1, 1, 3, 3, 56.0))
sketch15.addConstraint(Sketcher.Constraint("DistanceX", 1, 3, 2, 3, 51.0))
sketch15.addConstraint(Sketcher.Constraint("DistanceY", -1, 1, 0, 3, 71.5))
sketch15.addConstraint(Sketcher.Constraint("DistanceX", -1, 1, 1, 3, 8.5))
sketch15.addConstraint(Sketcher.Constraint("Diameter", 0, 10.008621))
sketch15.addConstraint(Sketcher.Constraint("Diameter", 1, 10.00796))
sketch15.addConstraint(Sketcher.Constraint("Diameter", 2, 9.990088))
sketch15.addConstraint(Sketcher.Constraint("Diameter", 3, 9.996568))
pocket6 = body.newObject("PartDesign::Pocket", "Pocket005")
pocket6.Profile = sketch15
pocket6.Length = 6

sketch16 = body.newObject("Sketcher::SketchObject", "Sketch015")
sketch16.AttachmentSupport = (doc.getObject("XZ_Plane"), [""])
sketch16.MapMode = "FlatFace"
sketch16.addGeometry(Part.LineSegment(V(6, 74, 0), V(6, 77, 0)), False)
sketch16.addGeometry(Part.LineSegment(V(6, 77, 0), V(3, 77, 0)), False)
sketch16.addGeometry(Part.LineSegment(V(3, 77, 0), V(3, 74, 0)), False)
sketch16.addGeometry(Part.LineSegment(V(3, 74, 0), V(6, 74, 0)), False)
sketch16.addGeometry(Part.LineSegment(V(65, 74, 0), V(65, 77, 0)), False)
sketch16.addGeometry(Part.LineSegment(V(65, 77, 0), V(62, 77, 0)), False)
sketch16.addGeometry(Part.LineSegment(V(62, 77, 0), V(62, 74, 0)), False)
sketch16.addGeometry(Part.LineSegment(V(62, 74, 0), V(65, 74, 0)), False)
sketch16.addConstraint(Sketcher.Constraint("Coincident", 0, 2, 1, 1))
sketch16.addConstraint(Sketcher.Constraint("Coincident", 1, 2, 2, 1))
sketch16.addConstraint(Sketcher.Constraint("Coincident", 2, 2, 3, 1))
sketch16.addConstraint(Sketcher.Constraint("Coincident", 3, 2, 0, 1))
sketch16.addConstraint(Sketcher.Constraint("Coincident", 4, 2, 5, 1))
sketch16.addConstraint(Sketcher.Constraint("Coincident", 5, 2, 6, 1))
sketch16.addConstraint(Sketcher.Constraint("Coincident", 6, 2, 7, 1))
sketch16.addConstraint(Sketcher.Constraint("Coincident", 7, 2, 4, 1))
sketch16.addConstraint(Sketcher.Constraint("Vertical", 0))
sketch16.addConstraint(Sketcher.Constraint("Horizontal", 1))
sketch16.addConstraint(Sketcher.Constraint("Vertical", 2))
sketch16.addConstraint(Sketcher.Constraint("Horizontal", 3))
sketch16.addConstraint(Sketcher.Constraint("Vertical", 4))
sketch16.addConstraint(Sketcher.Constraint("Horizontal", 5))
sketch16.addConstraint(Sketcher.Constraint("Vertical", 6))
sketch16.addConstraint(Sketcher.Constraint("Horizontal", 7))
sketch16.addConstraint(Sketcher.Constraint("Horizontal", 1, 2, 4, 2))
sketch16.addConstraint(Sketcher.Constraint("Horizontal", 3, 2, 6, 2))
sketch16.addConstraint(Sketcher.Constraint("Equal", 3, 5))
sketch16.addConstraint(Sketcher.Constraint("Equal", 7, 0))
sketch16.addConstraint(Sketcher.Constraint("DistanceX", 1, 2, 1, 1, 3.0))
sketch16.addConstraint(Sketcher.Constraint("DistanceX", -1, 1, 0, 2, 6.0))
sketch16.addConstraint(Sketcher.Constraint("DistanceY", -1, 1, 0, 2, 77.0))
sketch16.addConstraint(Sketcher.Constraint("DistanceX", -1, 1, 4, 2, 65.0))
pad10 = body.newObject("PartDesign::Pad", "Pad009")
pad10.Profile = sketch16
pad10.Length = 22

sketch17 = body.newObject("Sketcher::SketchObject", "Sketch016")
sketch17.AttachmentSupport = (doc.getObject("XZ_Plane"), [""])
sketch17.MapMode = "FlatFace"
sketch17.AttachmentOffset = App.Placement(V(0, 0, 22), App.Rotation())
sketch17.addGeometry(Part.Circle(V(65, 77, 0), V(0, 0, 1), 1.2), False)
sketch17.addGeometry(Part.Circle(V(3, 77, 0), V(0, 0, 1), 1.2), False)
sketch17.addGeometry(Part.Circle(V(65, 16, 0), V(0, 0, 1), 1.2), False)
sketch17.addGeometry(Part.Circle(V(3, 16, 0), V(0, 0, 1), 1.2), False)
sketch17.addConstraint(Sketcher.Constraint("Equal", 0, 1))
sketch17.addConstraint(Sketcher.Constraint("Equal", 1, 2))
sketch17.addConstraint(Sketcher.Constraint("Equal", 2, 3))
sketch17.addConstraint(Sketcher.Constraint("Horizontal", 0, 3, 1, 3))
sketch17.addConstraint(Sketcher.Constraint("Horizontal", 2, 3, 3, 3))
sketch17.addConstraint(Sketcher.Constraint("Vertical", 0, 3, 2, 3))
sketch17.addConstraint(Sketcher.Constraint("Vertical", 1, 3, 3, 3))
sketch17.addConstraint(Sketcher.Constraint("Diameter", 0, 2.4))
sketch17.addConstraint(Sketcher.Constraint("DistanceX", -1, 1, 0, 3, 65.0))
sketch17.addConstraint(Sketcher.Constraint("DistanceY", -1, 1, 0, 3, 77.0))
sketch17.addConstraint(Sketcher.Constraint("DistanceX", -1, 1, 1, 3, 3.0))
sketch17.addConstraint(Sketcher.Constraint("DistanceY", -1, 1, 2, 3, 16.0))
pocket7 = body.newObject("PartDesign::Pocket", "Pocket006")
pocket7.Profile = sketch17
pocket7.Length = 5

sketch18 = body.newObject("Sketcher::SketchObject", "Sketch017")
sketch18.AttachmentSupport = (doc.getObject("XZ_Plane"), [""])
sketch18.MapMode = "FlatFace"
sketch18.addGeometry(Part.Circle(V(36.8, 42, 0), V(0, 0, 1), 2.5), False)
sketch18.addGeometry(Part.Circle(V(30.4, 42, 0), V(0, 0, 1), 2.5), False)
sketch18.addGeometry(Part.Circle(V(24.1, 42, 0), V(0, 0, 1), 2.5), False)
sketch18.addGeometry(Part.Circle(V(17.7, 42, 0), V(0, 0, 1), 2.5), False)
sketch18.addGeometry(Part.Circle(V(11.3, 42, 0), V(0, 0, 1), 2.5), False)
sketch18.addGeometry(Part.Circle(V(11.3, 48.4, 0), V(0, 0, 1), 2.5), False)
sketch18.addGeometry(Part.Circle(V(17.7, 48.4, 0), V(0, 0, 1), 2.5), False)
sketch18.addGeometry(Part.Circle(V(24.1, 48.4, 0), V(0, 0, 1), 2.5), False)
sketch18.addGeometry(Part.Circle(V(30.4, 48.4, 0), V(0, 0, 1), 2.5), False)
sketch18.addGeometry(Part.Circle(V(36.8, 48.4, 0), V(0, 0, 1), 2.5), False)
sketch18.addGeometry(Part.Circle(V(36.8, 54.8, 0), V(0, 0, 1), 2.5), False)
sketch18.addGeometry(Part.Circle(V(36.8, 61.3, 0), V(0, 0, 1), 2.5), False)
sketch18.addGeometry(Part.Circle(V(30.4, 54.8, 0), V(0, 0, 1), 2.5), False)
sketch18.addGeometry(Part.Circle(V(30.4, 61.3, 0), V(0, 0, 1), 2.5), False)
sketch18.addGeometry(Part.Circle(V(24.1, 54.8, 0), V(0, 0, 1), 2.5), False)
sketch18.addGeometry(Part.Circle(V(24.1, 61.3, 0), V(0, 0, 1), 2.5), False)
sketch18.addGeometry(Part.Circle(V(17.7, 54.8, 0), V(0, 0, 1), 2.5), False)
sketch18.addGeometry(Part.Circle(V(17.7, 61.3, 0), V(0, 0, 1), 2.5), False)
sketch18.addGeometry(Part.Circle(V(11.3, 54.8, 0), V(0, 0, 1), 2.5), False)
sketch18.addGeometry(Part.Circle(V(11.3, 61.3, 0), V(0, 0, 1), 2.5), False)
sketch18.addConstraint(Sketcher.Constraint("Equal", 0, 1))
sketch18.addConstraint(Sketcher.Constraint("Equal", 1, 2))
sketch18.addConstraint(Sketcher.Constraint("Equal", 2, 3))
sketch18.addConstraint(Sketcher.Constraint("Equal", 3, 4))
sketch18.addConstraint(Sketcher.Constraint("Equal", 4, 5))
sketch18.addConstraint(Sketcher.Constraint("Equal", 5, 6))
sketch18.addConstraint(Sketcher.Constraint("Equal", 6, 7))
sketch18.addConstraint(Sketcher.Constraint("Equal", 7, 8))
sketch18.addConstraint(Sketcher.Constraint("Equal", 8, 9))
sketch18.addConstraint(Sketcher.Constraint("Equal", 9, 10))
sketch18.addConstraint(Sketcher.Constraint("Equal", 10, 11))
sketch18.addConstraint(Sketcher.Constraint("Equal", 11, 12))
sketch18.addConstraint(Sketcher.Constraint("Equal", 12, 13))
sketch18.addConstraint(Sketcher.Constraint("Equal", 13, 14))
sketch18.addConstraint(Sketcher.Constraint("Equal", 14, 15))
sketch18.addConstraint(Sketcher.Constraint("Equal", 15, 16))
sketch18.addConstraint(Sketcher.Constraint("Equal", 16, 17))
sketch18.addConstraint(Sketcher.Constraint("Equal", 17, 18))
sketch18.addConstraint(Sketcher.Constraint("Equal", 18, 19))
sketch18.addConstraint(Sketcher.Constraint("Horizontal", 0, 3, 1, 3))
sketch18.addConstraint(Sketcher.Constraint("Horizontal", 1, 3, 2, 3))
sketch18.addConstraint(Sketcher.Constraint("Horizontal", 2, 3, 3, 3))
sketch18.addConstraint(Sketcher.Constraint("Horizontal", 3, 3, 4, 3))
sketch18.addConstraint(Sketcher.Constraint("Horizontal", 5, 3, 6, 3))
sketch18.addConstraint(Sketcher.Constraint("Horizontal", 6, 3, 7, 3))
sketch18.addConstraint(Sketcher.Constraint("Horizontal", 7, 3, 8, 3))
sketch18.addConstraint(Sketcher.Constraint("Horizontal", 8, 3, 9, 3))
sketch18.addConstraint(Sketcher.Constraint("Horizontal", 10, 3, 12, 3))
sketch18.addConstraint(Sketcher.Constraint("Horizontal", 11, 3, 13, 3))
sketch18.addConstraint(Sketcher.Constraint("Horizontal", 12, 3, 14, 3))
sketch18.addConstraint(Sketcher.Constraint("Horizontal", 13, 3, 15, 3))
sketch18.addConstraint(Sketcher.Constraint("Horizontal", 14, 3, 16, 3))
sketch18.addConstraint(Sketcher.Constraint("Horizontal", 15, 3, 17, 3))
sketch18.addConstraint(Sketcher.Constraint("Horizontal", 16, 3, 18, 3))
sketch18.addConstraint(Sketcher.Constraint("Horizontal", 17, 3, 19, 3))
sketch18.addConstraint(Sketcher.Constraint("Vertical", 4, 3, 5, 3))
sketch18.addConstraint(Sketcher.Constraint("Vertical", 3, 3, 6, 3))
sketch18.addConstraint(Sketcher.Constraint("Vertical", 2, 3, 7, 3))
sketch18.addConstraint(Sketcher.Constraint("Vertical", 1, 3, 8, 3))
sketch18.addConstraint(Sketcher.Constraint("Vertical", 0, 3, 9, 3))
sketch18.addConstraint(Sketcher.Constraint("Vertical", 9, 3, 10, 3))
sketch18.addConstraint(Sketcher.Constraint("Vertical", 10, 3, 11, 3))
sketch18.addConstraint(Sketcher.Constraint("Vertical", 8, 3, 12, 3))
sketch18.addConstraint(Sketcher.Constraint("Vertical", 12, 3, 13, 3))
sketch18.addConstraint(Sketcher.Constraint("Vertical", 7, 3, 14, 3))
sketch18.addConstraint(Sketcher.Constraint("Vertical", 14, 3, 15, 3))
sketch18.addConstraint(Sketcher.Constraint("Vertical", 6, 3, 16, 3))
sketch18.addConstraint(Sketcher.Constraint("Vertical", 16, 3, 17, 3))
sketch18.addConstraint(Sketcher.Constraint("Vertical", 5, 3, 18, 3))
sketch18.addConstraint(Sketcher.Constraint("Vertical", 18, 3, 19, 3))
sketch18.addConstraint(Sketcher.Constraint("Diameter", 0, 5.0))
sketch18.addConstraint(Sketcher.Constraint("DistanceY", -1, 1, 0, 3, 42.0))
sketch18.addConstraint(Sketcher.Constraint("DistanceX", -1, 1, 0, 3, 36.8))
sketch18.addConstraint(Sketcher.Constraint("DistanceX", -1, 1, 3, 3, 17.7))
sketch18.addConstraint(Sketcher.Constraint("DistanceX", 4, 3, 1, 3, 19.1))
sketch18.addConstraint(Sketcher.Constraint("DistanceX", -1, 1, 1, 3, 30.45))
sketch18.addConstraint(Sketcher.Constraint("DistanceX", -1, 1, 2, 3, 24.075))
sketch18.addConstraint(Sketcher.Constraint("DistanceY", -1, 1, 10, 3, 54.845))
sketch18.addConstraint(Sketcher.Constraint("DistanceY", 9, 3, 11, 3, 12.845))
sketch18.addConstraint(Sketcher.Constraint("DistanceY", -1, 1, 5, 3, 48.4225))
pocket8 = body.newObject("PartDesign::Pocket", "Pocket007")
pocket8.Profile = sketch18
pocket8.Length = 10
doc.recompute()

fillet = body.newObject("PartDesign::Fillet", "Fillet")
fillet.Base = (pocket8, edges_at(pocket8, [
    (0, -5, 80),
    (68, -5, 80),
    (0, -9, 0),
    (68, -9, 0),
]))
fillet.Radius = 2.5

doc.recompute()
